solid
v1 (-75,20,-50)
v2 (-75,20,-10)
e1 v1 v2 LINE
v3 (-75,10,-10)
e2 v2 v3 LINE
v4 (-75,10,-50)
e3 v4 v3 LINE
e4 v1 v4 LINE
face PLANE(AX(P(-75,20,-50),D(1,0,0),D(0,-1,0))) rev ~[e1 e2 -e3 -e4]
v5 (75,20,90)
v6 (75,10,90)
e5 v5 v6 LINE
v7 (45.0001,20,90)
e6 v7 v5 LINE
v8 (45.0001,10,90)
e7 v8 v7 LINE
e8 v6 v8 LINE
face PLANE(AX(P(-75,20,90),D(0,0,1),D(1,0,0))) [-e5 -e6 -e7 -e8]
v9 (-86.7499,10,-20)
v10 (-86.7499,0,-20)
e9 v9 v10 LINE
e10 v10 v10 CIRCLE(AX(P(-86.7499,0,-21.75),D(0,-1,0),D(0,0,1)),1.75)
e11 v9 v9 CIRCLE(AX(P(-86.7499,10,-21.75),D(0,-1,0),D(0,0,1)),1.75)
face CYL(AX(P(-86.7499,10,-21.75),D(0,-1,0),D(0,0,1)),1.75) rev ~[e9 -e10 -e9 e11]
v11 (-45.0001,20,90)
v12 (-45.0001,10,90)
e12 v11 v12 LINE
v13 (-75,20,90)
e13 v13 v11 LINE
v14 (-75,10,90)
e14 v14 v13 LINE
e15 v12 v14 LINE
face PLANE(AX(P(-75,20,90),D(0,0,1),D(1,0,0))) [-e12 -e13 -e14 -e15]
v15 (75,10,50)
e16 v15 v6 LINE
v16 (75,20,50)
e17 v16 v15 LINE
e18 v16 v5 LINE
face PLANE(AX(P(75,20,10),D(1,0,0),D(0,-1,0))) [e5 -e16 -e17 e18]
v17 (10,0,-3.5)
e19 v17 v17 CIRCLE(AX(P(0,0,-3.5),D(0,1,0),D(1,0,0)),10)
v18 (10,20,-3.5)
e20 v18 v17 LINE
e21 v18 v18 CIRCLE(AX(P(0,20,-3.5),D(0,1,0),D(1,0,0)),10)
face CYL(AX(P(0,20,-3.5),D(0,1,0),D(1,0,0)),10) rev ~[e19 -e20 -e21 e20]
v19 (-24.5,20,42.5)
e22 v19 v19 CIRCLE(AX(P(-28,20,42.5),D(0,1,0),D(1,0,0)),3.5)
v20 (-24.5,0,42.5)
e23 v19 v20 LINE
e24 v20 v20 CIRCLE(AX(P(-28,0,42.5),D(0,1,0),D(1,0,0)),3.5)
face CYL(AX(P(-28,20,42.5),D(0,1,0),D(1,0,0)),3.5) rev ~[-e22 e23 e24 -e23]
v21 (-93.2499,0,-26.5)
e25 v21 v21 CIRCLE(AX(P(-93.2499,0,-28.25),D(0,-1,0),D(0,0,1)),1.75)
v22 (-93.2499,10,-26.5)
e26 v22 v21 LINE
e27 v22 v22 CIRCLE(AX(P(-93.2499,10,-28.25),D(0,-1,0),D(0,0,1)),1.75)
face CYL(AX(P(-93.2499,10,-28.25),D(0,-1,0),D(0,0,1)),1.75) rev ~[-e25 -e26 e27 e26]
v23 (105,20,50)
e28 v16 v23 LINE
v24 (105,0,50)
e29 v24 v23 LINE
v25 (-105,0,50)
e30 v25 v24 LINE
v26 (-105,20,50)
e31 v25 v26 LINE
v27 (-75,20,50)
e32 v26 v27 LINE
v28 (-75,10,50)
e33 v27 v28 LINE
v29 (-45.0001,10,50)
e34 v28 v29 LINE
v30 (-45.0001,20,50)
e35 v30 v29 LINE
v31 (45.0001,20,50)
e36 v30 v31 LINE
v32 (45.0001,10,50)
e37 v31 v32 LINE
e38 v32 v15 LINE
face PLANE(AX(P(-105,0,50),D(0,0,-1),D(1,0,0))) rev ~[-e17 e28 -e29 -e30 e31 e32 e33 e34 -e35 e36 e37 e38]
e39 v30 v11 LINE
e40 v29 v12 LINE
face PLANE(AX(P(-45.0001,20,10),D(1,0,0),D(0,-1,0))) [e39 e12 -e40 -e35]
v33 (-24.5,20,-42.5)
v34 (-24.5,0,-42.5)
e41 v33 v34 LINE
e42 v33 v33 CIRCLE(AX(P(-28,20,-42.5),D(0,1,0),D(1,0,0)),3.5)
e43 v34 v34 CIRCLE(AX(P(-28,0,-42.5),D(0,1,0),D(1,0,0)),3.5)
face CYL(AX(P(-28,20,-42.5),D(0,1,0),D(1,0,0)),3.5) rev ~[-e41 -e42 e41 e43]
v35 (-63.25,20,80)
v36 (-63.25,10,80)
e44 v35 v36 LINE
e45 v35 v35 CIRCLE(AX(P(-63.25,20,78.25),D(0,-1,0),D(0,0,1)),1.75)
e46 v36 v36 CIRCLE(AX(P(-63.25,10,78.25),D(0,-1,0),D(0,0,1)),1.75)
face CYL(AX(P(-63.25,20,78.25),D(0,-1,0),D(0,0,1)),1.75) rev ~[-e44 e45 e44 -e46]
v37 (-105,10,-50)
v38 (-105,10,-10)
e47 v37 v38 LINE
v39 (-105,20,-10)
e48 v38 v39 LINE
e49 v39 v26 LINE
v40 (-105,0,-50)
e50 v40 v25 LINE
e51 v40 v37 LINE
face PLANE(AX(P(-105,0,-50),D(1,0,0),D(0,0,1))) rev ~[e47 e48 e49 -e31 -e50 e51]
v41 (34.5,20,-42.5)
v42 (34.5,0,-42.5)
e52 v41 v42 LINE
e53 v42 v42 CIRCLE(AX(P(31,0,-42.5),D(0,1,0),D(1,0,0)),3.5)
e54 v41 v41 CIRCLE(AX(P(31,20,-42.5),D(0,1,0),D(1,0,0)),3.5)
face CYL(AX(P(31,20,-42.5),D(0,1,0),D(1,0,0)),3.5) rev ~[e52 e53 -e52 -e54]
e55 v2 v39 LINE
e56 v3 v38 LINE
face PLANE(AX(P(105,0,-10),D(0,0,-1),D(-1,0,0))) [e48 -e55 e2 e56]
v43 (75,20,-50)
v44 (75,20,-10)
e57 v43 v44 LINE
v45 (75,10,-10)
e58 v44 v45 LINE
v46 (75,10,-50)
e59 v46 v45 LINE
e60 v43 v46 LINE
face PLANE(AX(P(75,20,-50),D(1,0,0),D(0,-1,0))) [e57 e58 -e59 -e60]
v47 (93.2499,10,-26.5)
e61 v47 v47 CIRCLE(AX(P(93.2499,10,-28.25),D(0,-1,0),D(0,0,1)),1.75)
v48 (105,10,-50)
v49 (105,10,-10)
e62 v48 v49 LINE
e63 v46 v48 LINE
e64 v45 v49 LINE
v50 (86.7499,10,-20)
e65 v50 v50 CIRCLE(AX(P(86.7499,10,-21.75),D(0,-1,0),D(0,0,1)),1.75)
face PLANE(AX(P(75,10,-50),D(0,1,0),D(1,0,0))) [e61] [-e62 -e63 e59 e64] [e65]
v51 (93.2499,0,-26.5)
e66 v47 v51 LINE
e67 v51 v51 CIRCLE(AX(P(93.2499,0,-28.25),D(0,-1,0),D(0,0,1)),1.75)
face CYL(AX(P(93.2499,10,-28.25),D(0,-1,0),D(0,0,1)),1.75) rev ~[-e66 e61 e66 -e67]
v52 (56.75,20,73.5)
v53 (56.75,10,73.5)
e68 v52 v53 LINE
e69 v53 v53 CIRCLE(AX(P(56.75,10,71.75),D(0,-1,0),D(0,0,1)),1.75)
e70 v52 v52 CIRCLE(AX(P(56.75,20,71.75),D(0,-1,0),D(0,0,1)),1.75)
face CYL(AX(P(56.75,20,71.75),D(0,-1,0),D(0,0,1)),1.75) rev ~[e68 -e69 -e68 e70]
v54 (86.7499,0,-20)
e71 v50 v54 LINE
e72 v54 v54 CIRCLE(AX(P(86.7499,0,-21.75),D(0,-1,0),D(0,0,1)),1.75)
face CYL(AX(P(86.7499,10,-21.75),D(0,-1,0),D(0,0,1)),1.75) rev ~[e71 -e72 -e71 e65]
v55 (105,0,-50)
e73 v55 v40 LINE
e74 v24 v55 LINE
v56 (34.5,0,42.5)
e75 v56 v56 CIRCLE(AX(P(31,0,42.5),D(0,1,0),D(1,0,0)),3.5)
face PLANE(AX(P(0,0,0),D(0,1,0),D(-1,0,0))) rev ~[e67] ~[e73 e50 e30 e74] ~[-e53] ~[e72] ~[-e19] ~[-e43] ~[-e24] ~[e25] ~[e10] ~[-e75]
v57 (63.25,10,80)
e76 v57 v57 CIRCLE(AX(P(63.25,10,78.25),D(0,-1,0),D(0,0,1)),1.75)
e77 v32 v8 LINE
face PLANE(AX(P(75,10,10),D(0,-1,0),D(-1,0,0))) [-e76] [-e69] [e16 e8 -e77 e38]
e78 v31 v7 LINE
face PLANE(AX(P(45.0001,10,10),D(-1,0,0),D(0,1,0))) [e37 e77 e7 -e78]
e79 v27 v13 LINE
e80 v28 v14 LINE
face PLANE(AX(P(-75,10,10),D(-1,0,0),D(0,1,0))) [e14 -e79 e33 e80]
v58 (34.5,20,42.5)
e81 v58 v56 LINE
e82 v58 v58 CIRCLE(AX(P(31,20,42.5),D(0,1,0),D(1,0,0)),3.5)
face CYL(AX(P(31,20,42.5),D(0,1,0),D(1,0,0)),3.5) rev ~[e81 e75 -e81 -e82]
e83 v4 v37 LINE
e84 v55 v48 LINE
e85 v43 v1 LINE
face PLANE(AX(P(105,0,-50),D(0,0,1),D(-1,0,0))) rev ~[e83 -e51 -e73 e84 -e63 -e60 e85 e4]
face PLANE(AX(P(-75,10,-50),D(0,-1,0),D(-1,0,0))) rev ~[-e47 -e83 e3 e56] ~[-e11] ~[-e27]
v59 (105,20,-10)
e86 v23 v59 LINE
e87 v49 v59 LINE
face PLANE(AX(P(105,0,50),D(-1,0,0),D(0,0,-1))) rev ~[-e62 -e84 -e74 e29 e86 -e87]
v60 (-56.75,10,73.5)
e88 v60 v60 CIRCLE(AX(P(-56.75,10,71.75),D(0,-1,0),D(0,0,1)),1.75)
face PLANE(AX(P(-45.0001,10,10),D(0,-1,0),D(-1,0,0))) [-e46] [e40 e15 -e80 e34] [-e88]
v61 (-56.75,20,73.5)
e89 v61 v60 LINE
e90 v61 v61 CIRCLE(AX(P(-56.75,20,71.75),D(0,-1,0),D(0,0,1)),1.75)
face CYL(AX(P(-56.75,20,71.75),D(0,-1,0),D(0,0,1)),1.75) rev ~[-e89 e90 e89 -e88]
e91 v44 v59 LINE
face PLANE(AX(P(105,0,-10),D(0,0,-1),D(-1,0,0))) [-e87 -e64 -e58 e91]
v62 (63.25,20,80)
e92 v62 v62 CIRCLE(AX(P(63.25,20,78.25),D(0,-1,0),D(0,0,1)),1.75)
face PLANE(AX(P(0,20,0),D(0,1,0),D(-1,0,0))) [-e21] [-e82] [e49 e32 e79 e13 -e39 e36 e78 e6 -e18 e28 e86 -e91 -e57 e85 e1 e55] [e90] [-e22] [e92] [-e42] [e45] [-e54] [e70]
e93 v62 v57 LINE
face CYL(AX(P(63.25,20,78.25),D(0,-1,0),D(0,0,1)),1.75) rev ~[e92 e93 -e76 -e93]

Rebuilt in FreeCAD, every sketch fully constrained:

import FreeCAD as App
import Part
import Sketcher
from FreeCAD import Vector

doc = App.newDocument("Part")
params = doc.addObject("Spreadsheet::Sheet", "Params")
for row, (alias, value) in enumerate([
    ("sketch1_width", "210 mm"),
    ("sketch1_height", "100 mm"),
    ("pad1_length", "20 mm"),
    ("sketch2_diameter", "7 mm"),
    ("sketch2_diameter2", "20 mm"),
    ("pocket1_length", "20 mm"),
    ("sketch3_width", "30 mm"),
    ("sketch3_height", "40 mm"),
    ("pocket2_length", "10 mm"),
    ("sketch4_width", "30 mm"),
    ("sketch4_height", "10 mm"),
    ("pad2_length", "80 mm"),
    ("sketch5_diameter", "3.5 mm"),
    ("hole_diameter", "3.5 mm"),
    ("sketch6_width", "30 mm"),
    ("sketch6_height", "10 mm"),
    ("pocket3_length", "40 mm"),
    ("sketch7_diameter", "3.5 mm"),
    ("hole2_diameter", "3.5 mm"),
], start=1):
    params.set(f"A{row}", alias)
    params.set(f"B{row}", "=" + value)
    params.setAlias(f"B{row}", alias)

body = doc.addObject("PartDesign::Body", "Body")

# Sketch on XZ plane
sketch1 = body.newObject("Sketcher::SketchObject", "Sketch")
sketch1.AttachmentSupport = (doc.getObject("XZ_Plane"), [""])
sketch1.MapMode = "FlatFace"
sketch1.addGeometry([
    Part.LineSegment(Vector(-105, -50, 0), Vector(-105, 50, 0)),
    Part.LineSegment(Vector(-105, 50, 0), Vector(105, 50, 0)),
    Part.LineSegment(Vector(105, 50, 0), Vector(105, -50, 0)),
    Part.LineSegment(Vector(105, -50, 0), Vector(-105, -50, 0)),
], False)
sketch1.addConstraint([
    Sketcher.Constraint("Coincident", 0, 2, 1, 1),
    Sketcher.Constraint("Coincident", 1, 2, 2, 1),
    Sketcher.Constraint("Coincident", 2, 2, 3, 1),
    Sketcher.Constraint("Coincident", 3, 2, 0, 1),
    Sketcher.Constraint("Vertical", 0),
    Sketcher.Constraint("Horizontal", 1),
    Sketcher.Constraint("Vertical", 2),
    Sketcher.Constraint("Horizontal", 3),
    Sketcher.Constraint("Symmetric", 0, 2, 2, 2, -1, 1),
    Sketcher.Constraint("DistanceX", 1, 1, 1, 2, 210.0),
    Sketcher.Constraint("DistanceY", 0, 1, 0, 2, 100.0),
])
sketch1.setExpression("Constraints[9]", "Params.sketch1_width")
sketch1.setExpression("Constraints[10]", "Params.sketch1_height")
pad1 = body.newObject("PartDesign::Pad", "Pad")
pad1.Profile = sketch1
pad1.setExpression("Length", "Params.pad1_length")
pad1.Reversed = True

# Sketch on XZ plane
sketch2 = body.newObject("Sketcher::SketchObject", "Sketch001")
sketch2.AttachmentSupport = (doc.getObject("XZ_Plane"), [""])
sketch2.MapMode = "FlatFace"
sketch2.AttachmentOffset = App.Placement(Vector(0, 0, -20), App.Rotation())
sketch2.addGeometry([
    Part.Circle(Vector(0, -3.5, 0), Vector(0, 0, 1), 10),  # 0
    Part.Circle(Vector(31, 42.5, 0), Vector(0, 0, 1), 3.5),  # 1
    Part.Circle(Vector(31, -42.5, 0), Vector(0, 0, 1), 3.5),  # 2
    Part.Circle(Vector(-28, -42.5, 0), Vector(0, 0, 1), 3.5),  # 3
    Part.Circle(Vector(-28, 42.5, 0), Vector(0, 0, 1), 3.5),  # 4
], False)
sketch2.addConstraint([
    Sketcher.Constraint("Equal", 1, 2),
    Sketcher.Constraint("Equal", 2, 3),
    Sketcher.Constraint("Equal", 3, 4),
    Sketcher.Constraint("Symmetric", 1, 3, 2, 3, -1),
    Sketcher.Constraint("Symmetric", 3, 3, 4, 3, -1),
    Sketcher.Constraint("PointOnObject", 0, 3, -2),
    Sketcher.Constraint("Horizontal", 2, 3, 3, 3),
    Sketcher.Constraint("Diameter", 1, 7.0),
    Sketcher.Constraint("Diameter", 0, 20.0),
    Sketcher.Constraint("DistanceY", 0, 3, 1, 3, 46.0),
    Sketcher.Constraint("DistanceY", 2, 3, 0, 3, 39.0),
    Sketcher.Constraint("DistanceX", 3, 3, 2, 3, 59.0),
    Sketcher.Constraint("DistanceX", -1, 1, 1, 3, 31.0),
])
sketch2.setExpression("Constraints[7]", "Params.sketch2_diameter")
sketch2.setExpression("Constraints[8]", "Params.sketch2_diameter2")
pocket1 = body.newObject("PartDesign::Pocket", "Pocket")
pocket1.Profile = sketch2
pocket1.setExpression("Length", "Params.pocket1_length")
pocket1.Reversed = True

# Sketch on XZ plane
sketch3 = body.newObject("Sketcher::SketchObject", "Sketch002")
sketch3.AttachmentSupport = (doc.getObject("XZ_Plane"), [""])
sketch3.MapMode = "FlatFace"
sketch3.AttachmentOffset = App.Placement(Vector(0, 0, -20), App.Rotation())
sketch3.addGeometry([
    Part.LineSegment(Vector(-75, 10, 0), Vector(-75, 50, 0)),  # 0
    Part.LineSegment(Vector(-75, 50, 0), Vector(-45, 50, 0)),  # 1
    Part.LineSegment(Vector(-45, 50, 0), Vector(-45, 10, 0)),  # 2
    Part.LineSegment(Vector(-45, 10, 0), Vector(-75, 10, 0)),  # 3
    Part.LineSegment(Vector(45, 10, 0), Vector(45, 50, 0)),  # 4
    Part.LineSegment(Vector(45, 50, 0), Vector(75, 50, 0)),  # 5
    Part.LineSegment(Vector(75, 50, 0), Vector(75, 10, 0)),  # 6
    Part.LineSegment(Vector(75, 10, 0), Vector(45, 10, 0)),  # 7
], False)
sketch3.addConstraint([
    Sketcher.Constraint("Coincident", 0, 2, 1, 1),
    Sketcher.Constraint("Coincident", 1, 2, 2, 1),
    Sketcher.Constraint("Coincident", 2, 2, 3, 1),
    Sketcher.Constraint("Coincident", 3, 2, 0, 1),
    Sketcher.Constraint("Coincident", 4, 2, 5, 1),
    Sketcher.Constraint("Coincident", 5, 2, 6, 1),
    Sketcher.Constraint("Coincident", 6, 2, 7, 1),
    Sketcher.Constraint("Coincident", 7, 2, 4, 1),
    Sketcher.Constraint("Vertical", 0),
    Sketcher.Constraint("Horizontal", 1),
    Sketcher.Constraint("Vertical", 2),
    Sketcher.Constraint("Horizontal", 3),
    Sketcher.Constraint("Vertical", 4),
    Sketcher.Constraint("Horizontal", 5),
    Sketcher.Constraint("Vertical", 6),
    Sketcher.Constraint("Horizontal", 7),
    Sketcher.Constraint("Symmetric", 1, 2, 4, 2, -2),
    Sketcher.Constraint("Symmetric", 3, 2, 6, 2, -2),
    Sketcher.Constraint("DistanceX", 1, 1, 1, 2, 30.0),
    Sketcher.Constraint("DistanceY", 0, 1, 0, 2, 40.0),
    Sketcher.Constraint("DistanceX", 0, 2, -1, 1, 75.0),
    Sketcher.Constraint("DistanceY", -1, 1, 0, 2, 50.0),
])
sketch3.setExpression("Constraints[18]", "Params.sketch3_width")
sketch3.setExpression("Constraints[19]", "Params.sketch3_height")
pocket2 = body.newObject("PartDesign::Pocket", "Pocket001")
pocket2.Profile = sketch3
pocket2.setExpression("Length", "Params.pocket2_length")
pocket2.Reversed = True

# Sketch on XY plane
sketch4 = body.newObject("Sketcher::SketchObject", "Sketch003")
sketch4.AttachmentSupport = (doc.getObject("XY_Plane"), [""])
sketch4.MapMode = "FlatFace"
sketch4.AttachmentOffset = App.Placement(Vector(0, 0, 10), App.Rotation())
sketch4.addGeometry([
    Part.LineSegment(Vector(-75, 20, 0), Vector(-75, 10, 0)),  # 0
    Part.LineSegment(Vector(-75, 10, 0), Vector(-45, 10, 0)),  # 1
    Part.LineSegment(Vector(-45, 10, 0), Vector(-45, 20, 0)),  # 2
    Part.LineSegment(Vector(-45, 20, 0), Vector(-75, 20, 0)),  # 3
    Part.LineSegment(Vector(45, 20, 0), Vector(45, 10, 0)),  # 4
    Part.LineSegment(Vector(45, 10, 0), Vector(75, 10, 0)),  # 5
    Part.LineSegment(Vector(75, 10, 0), Vector(75, 20, 0)),  # 6
    Part.LineSegment(Vector(75, 20, 0), Vector(45, 20, 0)),  # 7
], False)
sketch4.addConstraint([
    Sketcher.Constraint("Coincident", 0, 2, 1, 1),
    Sketcher.Constraint("Coincident", 1, 2, 2, 1),
    Sketcher.Constraint("Coincident", 2, 2, 3, 1),
    Sketcher.Constraint("Coincident", 3, 2, 0, 1),
    Sketcher.Constraint("Coincident", 4, 2, 5, 1),
    Sketcher.Constraint("Coincident", 5, 2, 6, 1),
    Sketcher.Constraint("Coincident", 6, 2, 7, 1),
    Sketcher.Constraint("Coincident", 7, 2, 4, 1),
    Sketcher.Constraint("Vertical", 0),
    Sketcher.Constraint("Horizontal", 1),
    Sketcher.Constraint("Vertical", 2),
    Sketcher.Constraint("Horizontal", 3),
    Sketcher.Constraint("Vertical", 4),
    Sketcher.Constraint("Horizontal", 5),
    Sketcher.Constraint("Vertical", 6),
    Sketcher.Constraint("Horizontal", 7),
    Sketcher.Constraint("Symmetric", 1, 2, 4, 2, -2),
    Sketcher.Constraint("Symmetric", 3, 2, 6, 2, -2),
    Sketcher.Constraint("DistanceX", 1, 1, 1, 2, 30.0),
    Sketcher.Constraint("DistanceY", 0, 2, 0, 1, 10.0),
    Sketcher.Constraint("DistanceX", 0, 2, -1, 1, 75.0),
    Sketcher.Constraint("DistanceY", -1, 1, 0, 2, 10.0),
])
sketch4.setExpression("Constraints[18]", "Params.sketch4_width")
sketch4.setExpression("Constraints[19]", "Params.sketch4_height")
pad2 = body.newObject("PartDesign::Pad", "Pad001")
pad2.Profile = sketch4
pad2.setExpression("Length", "Params.pad2_length")

# Sketch on XZ plane
sketch5 = body.newObject("Sketcher::SketchObject", "Sketch004")
sketch5.AttachmentSupport = (doc.getObject("XZ_Plane"), [""])
sketch5.MapMode = "FlatFace"
sketch5.AttachmentOffset = App.Placement(Vector(0, 0, -20), App.Rotation())
sketch5.addGeometry([
    Part.Circle(Vector(-56.8, 71.8, 0), Vector(0, 0, 1), 1.8),
    Part.Circle(Vector(-63.2, 78.2, 0), Vector(0, 0, 1), 1.8),
    Part.Circle(Vector(56.8, 71.8, 0), Vector(0, 0, 1), 1.8),
    Part.Circle(Vector(63.2, 78.2, 0), Vector(0, 0, 1), 1.8),
], False)
sketch5.addConstraint([
    Sketcher.Constraint("Equal", 0, 1),
    Sketcher.Constraint("Equal", 1, 2),
    Sketcher.Constraint("Equal", 2, 3),
    Sketcher.Constraint("Symmetric", 0, 3, 2, 3, -2),
    Sketcher.Constraint("Symmetric", 1, 3, 3, 3, -2),
    Sketcher.Constraint("Diameter", 0, 3.5),
    Sketcher.Constraint("DistanceX", 1, 3, 2, 3, 120.0),
    Sketcher.Constraint("DistanceX", 1, 3, 0, 3, 6.5),
    Sketcher.Constraint("DistanceY", 0, 3, 1, 3, 6.5),
    Sketcher.Constraint("DistanceY", -1, 1, 0, 3, 71.75),
])
sketch5.setExpression("Constraints[5]", "Params.sketch5_diameter")
doc.recompute()
hole = body.newObject("PartDesign::Hole", "Hole")
hole.Profile = sketch5
hole.ThreadType = "None"
hole.setExpression("Diameter", "Params.hole_diameter")
hole.DepthType = "ThroughAll"
hole.Reversed = True

# Sketch on XY plane
sketch6 = body.newObject("Sketcher::SketchObject", "Sketch005")
sketch6.AttachmentSupport = (doc.getObject("XY_Plane"), [""])
sketch6.MapMode = "FlatFace"
sketch6.AttachmentOffset = App.Placement(Vector(0, 0, -50), App.Rotation())
sketch6.addGeometry([
    Part.LineSegment(Vector(75, 10, 0), Vector(75, 20, 0)),  # 0
    Part.LineSegment(Vector(75, 20, 0), Vector(105, 20, 0)),  # 1
    Part.LineSegment(Vector(105, 20, 0), Vector(105, 10, 0)),  # 2
    Part.LineSegment(Vector(105, 10, 0), Vector(75, 10, 0)),  # 3
    Part.LineSegment(Vector(-105, 20, 0), Vector(-75, 20, 0)),  # 4
    Part.LineSegment(Vector(-75, 20, 0), Vector(-75, 10, 0)),  # 5
    Part.LineSegment(Vector(-75, 10, 0), Vector(-105, 10, 0)),  # 6
    Part.LineSegment(Vector(-105, 10, 0), Vector(-105, 20, 0)),  # 7
], False)
sketch6.addConstraint([
    Sketcher.Constraint("Coincident", 0, 2, 1, 1),
    Sketcher.Constraint("Coincident", 1, 2, 2, 1),
    Sketcher.Constraint("Coincident", 2, 2, 3, 1),
    Sketcher.Constraint("Coincident", 3, 2, 0, 1),
    Sketcher.Constraint("Coincident", 4, 2, 5, 1),
    Sketcher.Constraint("Coincident", 5, 2, 6, 1),
    Sketcher.Constraint("Coincident", 6, 2, 7, 1),
    Sketcher.Constraint("Coincident", 7, 2, 4, 1),
    Sketcher.Constraint("Vertical", 0),
    Sketcher.Constraint("Horizontal", 1),
    Sketcher.Constraint("Vertical", 2),
    Sketcher.Constraint("Horizontal", 3),
    Sketcher.Constraint("Horizontal", 4),
    Sketcher.Constraint("Vertical", 5),
    Sketcher.Constraint("Horizontal", 6),
    Sketcher.Constraint("Vertical", 7),
    Sketcher.Constraint("Symmetric", 0, 2, 4, 2, -2),
    Sketcher.Constraint("Symmetric", 2, 2, 6, 2, -2),
    Sketcher.Constraint("DistanceX", 1, 1, 1, 2, 30.0),
    Sketcher.Constraint("DistanceY", 0, 1, 0, 2, 10.0),
    Sketcher.Constraint("DistanceX", -1, 1, 0, 2, 75.0),
    Sketcher.Constraint("DistanceY", -1, 1, 0, 2, 20.0),
])
sketch6.setExpression("Constraints[18]", "Params.sketch6_width")
sketch6.setExpression("Constraints[19]", "Params.sketch6_height")
pocket3 = body.newObject("PartDesign::Pocket", "Pocket002")
pocket3.Profile = sketch6
pocket3.setExpression("Length", "Params.pocket3_length")
pocket3.Reversed = True

# Sketch on XZ plane
sketch7 = body.newObject("Sketcher::SketchObject", "Sketch006")
sketch7.AttachmentSupport = (doc.getObject("XZ_Plane"), [""])
sketch7.MapMode = "FlatFace"
sketch7.AttachmentOffset = App.Placement(Vector(0, 0, -10), App.Rotation())
sketch7.addGeometry([
    Part.Circle(Vector(-93.2, -28.2, 0), Vector(0, 0, 1), 1.8),
    Part.Circle(Vector(-86.7, -21.8, 0), Vector(0, 0, 1), 1.8),
    Part.Circle(Vector(86.7, -21.8, 0), Vector(0, 0, 1), 1.8),
    Part.Circle(Vector(93.2, -28.2, 0), Vector(0, 0, 1), 1.8),
], False)
sketch7.addConstraint([
    Sketcher.Constraint("Equal", 0, 1),
    Sketcher.Constraint("Equal", 1, 2),
    Sketcher.Constraint("Equal", 2, 3),
    Sketcher.Constraint("Symmetric", 1, 3, 2, 3, -2),
    Sketcher.Constraint("Symmetric", 0, 3, 3, 3, -2),
    Sketcher.Constraint("Diameter", 0, 3.5),
    Sketcher.Constraint("DistanceX", 0, 3, 1, 3, 6.5),
    Sketcher.Constraint("DistanceY", 0, 3, 1, 3, 6.5),
    Sketcher.Constraint("DistanceX", 0, 3, -1, 1, 93.25),
    Sketcher.Constraint("DistanceY", 0, 3, -1, 1, 28.25),
])
sketch7.setExpression("Constraints[5]", "Params.sketch7_diameter")
doc.recompute()
hole2 = body.newObject("PartDesign::Hole", "Hole001")
hole2.Profile = sketch7
hole2.ThreadType = "None"
hole2.setExpression("Diameter", "Params.hole2_diameter")
hole2.DepthType = "ThroughAll"
hole2.Reversed = True

doc.recompute()
